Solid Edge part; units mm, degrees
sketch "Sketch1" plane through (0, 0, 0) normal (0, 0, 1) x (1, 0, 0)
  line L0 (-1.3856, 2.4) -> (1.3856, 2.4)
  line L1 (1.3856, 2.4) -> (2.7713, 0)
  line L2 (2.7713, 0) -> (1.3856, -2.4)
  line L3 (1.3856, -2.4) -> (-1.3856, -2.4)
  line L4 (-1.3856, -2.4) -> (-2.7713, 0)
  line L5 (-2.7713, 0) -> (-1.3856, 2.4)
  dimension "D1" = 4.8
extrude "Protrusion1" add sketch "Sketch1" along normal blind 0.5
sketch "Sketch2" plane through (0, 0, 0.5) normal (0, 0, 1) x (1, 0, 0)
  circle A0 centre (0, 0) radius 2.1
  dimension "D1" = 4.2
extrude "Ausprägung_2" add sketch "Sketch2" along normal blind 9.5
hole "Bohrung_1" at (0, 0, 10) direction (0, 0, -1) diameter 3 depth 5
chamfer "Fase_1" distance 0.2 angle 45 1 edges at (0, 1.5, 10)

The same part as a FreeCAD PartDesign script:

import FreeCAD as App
import Part
import Sketcher
from FreeCAD import Vector
Q = App.Units.Quantity


def edges_at(feature, points):
    """Names of the edges that pass closest to the given points."""
    edges = feature.Shape.Edges
    near = lambda p: min(range(len(edges)), key=lambda i: edges[i].distToShape(Part.Vertex(*p))[0])
    return sorted({f"Edge{near(p) + 1}" for p in points})

doc = App.newDocument("Part")
body = doc.addObject("PartDesign::Body", "Body")

sketch1 = body.newObject("Sketcher::SketchObject", "Sketch")
sketch1.AttachmentSupport = (doc.getObject("XY_Plane"), [""])
sketch1.MapMode = "FlatFace"
sketch1.addGeometry(Part.LineSegment(Vector(1.4, 2.4, 0), Vector(-1.4, 2.4, 0)), False)
sketch1.addGeometry(Part.LineSegment(Vector(-1.4, 2.4, 0), Vector(-2.8, 0, 0)), False)
sketch1.addGeometry(Part.LineSegment(Vector(-2.8, 0, 0), Vector(-1.4, -2.4, 0)), False)
sketch1.addGeometry(Part.LineSegment(Vector(-1.4, -2.4, 0), Vector(1.4, -2.4, 0)), False)
sketch1.addGeometry(Part.LineSegment(Vector(1.4, -2.4, 0), Vector(2.8, 0, 0)), False)
sketch1.addGeometry(Part.LineSegment(Vector(2.8, 0, 0), Vector(1.4, 2.4, 0)), False)
sketch1.addConstraint(Sketcher.Constraint("Coincident", 0, 2, 1, 1))
sketch1.addConstraint(Sketcher.Constraint("Coincident", 1, 2, 2, 1))
sketch1.addConstraint(Sketcher.Constraint("Coincident", 2, 2, 3, 1))
sketch1.addConstraint(Sketcher.Constraint("Coincident", 3, 2, 4, 1))
sketch1.addConstraint(Sketcher.Constraint("Coincident", 4, 2, 5, 1))
sketch1.addConstraint(Sketcher.Constraint("Coincident", 5, 2, 0, 1))
sketch1.addConstraint(Sketcher.Constraint("Horizontal", 0))
sketch1.addConstraint(Sketcher.Constraint("Horizontal", 3))
sketch1.addConstraint(Sketcher.Constraint("Symmetric", 0, 2, 3, 2, -1, 1))
sketch1.addConstraint(Sketcher.Constraint("Symmetric", 1, 2, 4, 2, -1, 1))
sketch1.addConstraint(Sketcher.Constraint("PointOnObject", 1, 2, -1))
sketch1.addConstraint(Sketcher.Constraint("Parallel", 2, 5))
sketch1.addConstraint(Sketcher.Constraint("Vertical", 0, 2, 2, 2))
sketch1.addConstraint(Sketcher.Constraint("Angle", 1, Q("-120.001 deg")))
sketch1.addConstraint(Sketcher.Constraint("DistanceY", -1, 1, 0, 2, 2.4))
sketch1.addConstraint(Sketcher.Constraint("DistanceX", 0, 2, 0, 1, 2.7712))
pad1 = body.newObject("PartDesign::Pad", "Pad")
pad1.Profile = sketch1
pad1.Length = 0.5

sketch2 = body.newObject("Sketcher::SketchObject", "Sketch001")
sketch2.AttachmentSupport = (doc.getObject("XY_Plane"), [""])
sketch2.MapMode = "FlatFace"
sketch2.AttachmentOffset = App.Placement(Vector(0, 0, 0.5), App.Rotation())
sketch2.addGeometry(Part.Circle(Vector(0, 0, 0), Vector(0, 0, 1), 2.1), False)
sketch2.addConstraint(Sketcher.Constraint("Coincident", 0, 3, -1, 1))
sketch2.addConstraint(Sketcher.Constraint("Diameter", 0, 4.2))
pad2 = body.newObject("PartDesign::Pad", "Pad001")
pad2.Profile = sketch2
pad2.Length = 9.5

sketch3 = body.newObject("Sketcher::SketchObject", "Sketch002")
sketch3.AttachmentSupport = (doc.getObject("XY_Plane"), [""])
sketch3.MapMode = "FlatFace"
sketch3.AttachmentOffset = App.Placement(Vector(0, 0, 10), App.Rotation())
sketch3.addGeometry(Part.Circle(Vector(0, 0, 0), Vector(0, 0, 1), 1.5), False)
sketch3.addConstraint(Sketcher.Constraint("Coincident", 0, 3, -1, 1))
sketch3.addConstraint(Sketcher.Constraint("Diameter", 0, 3.0))
doc.recompute()
hole = body.newObject("PartDesign::Hole", "Hole")
hole.Profile = sketch3
hole.ThreadType = "None"
hole.Diameter = 3
hole.DepthType = "Dimension"
hole.Depth = 5
hole.DrillPoint = "Flat"
doc.recompute()

chamfer = body.newObject("PartDesign::Chamfer", "Chamfer")
chamfer.Base = (hole, edges_at(hole, [(0, 1.5, 10)]))
chamfer.Size = 0.2

doc.recompute()
